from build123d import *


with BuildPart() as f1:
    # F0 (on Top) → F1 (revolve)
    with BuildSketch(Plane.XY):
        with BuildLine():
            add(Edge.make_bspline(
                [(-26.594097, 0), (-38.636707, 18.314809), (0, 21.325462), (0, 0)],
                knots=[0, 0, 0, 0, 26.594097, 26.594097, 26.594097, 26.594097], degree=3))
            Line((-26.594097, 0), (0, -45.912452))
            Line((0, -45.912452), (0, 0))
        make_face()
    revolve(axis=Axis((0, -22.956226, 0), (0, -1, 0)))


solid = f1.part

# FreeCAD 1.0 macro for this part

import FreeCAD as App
import Part
import Sketcher

V = App.Vector
Q = App.Units.Quantity

doc = App.newDocument("Part")
body = doc.addObject("PartDesign::Body", "Body")

sketch1 = body.newObject("Sketcher::SketchObject", "Sketch")
sketch1.AttachmentSupport = (doc.getObject("XY_Plane"), [""])
sketch1.MapMode = "FlatFace"
sketch1.addGeometry(Part.BSplineCurve([V(-26.594097, 0, 0), V(-38.636707, 18.314809, 0), V(0, 21.325462, 0), V(0, 0, 0)], [4, 4], [0, 26.594097], False, 3, [1, 1, 1, 1], False), False)
sketch1.addGeometry(Part.LineSegment(V(-26.594097, 0, 0), V(0, -45.912452, 0)), False)
sketch1.addGeometry(Part.LineSegment(V(0, -45.912452, 0), V(0, 0, 0)), False)
sketch1.addConstraint(Sketcher.Constraint("Block", 0))
sketch1.addConstraint(Sketcher.Constraint("Coincident", 0, 1, 1, 1))
sketch1.addConstraint(Sketcher.Constraint("Coincident", 1, 2, 2, 1))
sketch1.addConstraint(Sketcher.Constraint("Coincident", 2, 2, 0, 2))
sketch1.addConstraint(Sketcher.Constraint("Vertical", 2))
sketch1.addConstraint(Sketcher.Constraint("Distance", 1, Q("53.058451 mm")))
revolution = body.newObject("PartDesign::Revolution", "Revolution")
revolution.Profile = sketch1
revolution.ReferenceAxis = (sketch1, ["V_Axis"])
revolution.Angle = 360

doc.recompute()
